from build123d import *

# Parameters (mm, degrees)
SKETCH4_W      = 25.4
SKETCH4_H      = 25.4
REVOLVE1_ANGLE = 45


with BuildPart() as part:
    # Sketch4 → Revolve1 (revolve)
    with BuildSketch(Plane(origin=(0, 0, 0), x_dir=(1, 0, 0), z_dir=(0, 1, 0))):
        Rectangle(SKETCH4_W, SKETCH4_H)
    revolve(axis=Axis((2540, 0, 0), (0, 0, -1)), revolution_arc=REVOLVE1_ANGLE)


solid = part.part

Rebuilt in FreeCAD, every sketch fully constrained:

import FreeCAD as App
import Part
import Sketcher
Q = App.Units.Quantity


def add_polygon(sketch, points):
    """Adds a closed chain of lines whose ends are joined by coincident constraints."""
    first, n = sketch.GeometryCount, len(points)
    for a, b in zip(points, points[1:] + points[:1]):
        sketch.addGeometry(Part.LineSegment(App.Vector(*a, 0), App.Vector(*b, 0)), False)
    for i in range(n):
        sketch.addConstraint(Sketcher.Constraint("Coincident", first + i, 2, first + (i + 1) % n, 1))

doc = App.newDocument("Part")
body = doc.addObject("PartDesign::Body", "Body")

sketch1 = body.newObject("Sketcher::SketchObject", "Sketch")
sketch1.AttachmentSupport = (doc.getObject("XZ_Plane"), [""])
sketch1.MapMode = "FlatFace"
add_polygon(sketch1, [(-12.7, -12.7), (-12.7, 12.7), (12.7, 12.7), (12.7, -12.7)])
sketch1.addGeometry(Part.LineSegment(App.Vector(2540, 12.7, 0), App.Vector(2540, -12.7, 0)), True)
sketch1.addConstraint(Sketcher.Constraint("Vertical", 0))
sketch1.addConstraint(Sketcher.Constraint("Horizontal", 1))
sketch1.addConstraint(Sketcher.Constraint("Vertical", 2))
sketch1.addConstraint(Sketcher.Constraint("Horizontal", 3))
sketch1.addConstraint(Sketcher.Constraint("Vertical", 4))
sketch1.addConstraint(Sketcher.Constraint("Symmetric", 0, 2, 2, 2, -1, 1))
sketch1.addConstraint(Sketcher.Constraint("Horizontal", 1, 2, 4, 1))
sketch1.addConstraint(Sketcher.Constraint("Horizontal", 3, 2, 4, 2))
sketch1.addConstraint(Sketcher.Constraint("Equal", 3, 0))
sketch1.addConstraint(Sketcher.Constraint("DistanceX", 1, 1, 1, 2, Q("1 in")))
sketch1.addConstraint(Sketcher.Constraint("DistanceX", -1, 1, 4, 1, Q("100 in")))
revolution = body.newObject("PartDesign::Revolution", "Revolution")
revolution.Profile = sketch1
revolution.ReferenceAxis = (sketch1, ["Axis0"])
revolution.Angle = 45

doc.recompute()
